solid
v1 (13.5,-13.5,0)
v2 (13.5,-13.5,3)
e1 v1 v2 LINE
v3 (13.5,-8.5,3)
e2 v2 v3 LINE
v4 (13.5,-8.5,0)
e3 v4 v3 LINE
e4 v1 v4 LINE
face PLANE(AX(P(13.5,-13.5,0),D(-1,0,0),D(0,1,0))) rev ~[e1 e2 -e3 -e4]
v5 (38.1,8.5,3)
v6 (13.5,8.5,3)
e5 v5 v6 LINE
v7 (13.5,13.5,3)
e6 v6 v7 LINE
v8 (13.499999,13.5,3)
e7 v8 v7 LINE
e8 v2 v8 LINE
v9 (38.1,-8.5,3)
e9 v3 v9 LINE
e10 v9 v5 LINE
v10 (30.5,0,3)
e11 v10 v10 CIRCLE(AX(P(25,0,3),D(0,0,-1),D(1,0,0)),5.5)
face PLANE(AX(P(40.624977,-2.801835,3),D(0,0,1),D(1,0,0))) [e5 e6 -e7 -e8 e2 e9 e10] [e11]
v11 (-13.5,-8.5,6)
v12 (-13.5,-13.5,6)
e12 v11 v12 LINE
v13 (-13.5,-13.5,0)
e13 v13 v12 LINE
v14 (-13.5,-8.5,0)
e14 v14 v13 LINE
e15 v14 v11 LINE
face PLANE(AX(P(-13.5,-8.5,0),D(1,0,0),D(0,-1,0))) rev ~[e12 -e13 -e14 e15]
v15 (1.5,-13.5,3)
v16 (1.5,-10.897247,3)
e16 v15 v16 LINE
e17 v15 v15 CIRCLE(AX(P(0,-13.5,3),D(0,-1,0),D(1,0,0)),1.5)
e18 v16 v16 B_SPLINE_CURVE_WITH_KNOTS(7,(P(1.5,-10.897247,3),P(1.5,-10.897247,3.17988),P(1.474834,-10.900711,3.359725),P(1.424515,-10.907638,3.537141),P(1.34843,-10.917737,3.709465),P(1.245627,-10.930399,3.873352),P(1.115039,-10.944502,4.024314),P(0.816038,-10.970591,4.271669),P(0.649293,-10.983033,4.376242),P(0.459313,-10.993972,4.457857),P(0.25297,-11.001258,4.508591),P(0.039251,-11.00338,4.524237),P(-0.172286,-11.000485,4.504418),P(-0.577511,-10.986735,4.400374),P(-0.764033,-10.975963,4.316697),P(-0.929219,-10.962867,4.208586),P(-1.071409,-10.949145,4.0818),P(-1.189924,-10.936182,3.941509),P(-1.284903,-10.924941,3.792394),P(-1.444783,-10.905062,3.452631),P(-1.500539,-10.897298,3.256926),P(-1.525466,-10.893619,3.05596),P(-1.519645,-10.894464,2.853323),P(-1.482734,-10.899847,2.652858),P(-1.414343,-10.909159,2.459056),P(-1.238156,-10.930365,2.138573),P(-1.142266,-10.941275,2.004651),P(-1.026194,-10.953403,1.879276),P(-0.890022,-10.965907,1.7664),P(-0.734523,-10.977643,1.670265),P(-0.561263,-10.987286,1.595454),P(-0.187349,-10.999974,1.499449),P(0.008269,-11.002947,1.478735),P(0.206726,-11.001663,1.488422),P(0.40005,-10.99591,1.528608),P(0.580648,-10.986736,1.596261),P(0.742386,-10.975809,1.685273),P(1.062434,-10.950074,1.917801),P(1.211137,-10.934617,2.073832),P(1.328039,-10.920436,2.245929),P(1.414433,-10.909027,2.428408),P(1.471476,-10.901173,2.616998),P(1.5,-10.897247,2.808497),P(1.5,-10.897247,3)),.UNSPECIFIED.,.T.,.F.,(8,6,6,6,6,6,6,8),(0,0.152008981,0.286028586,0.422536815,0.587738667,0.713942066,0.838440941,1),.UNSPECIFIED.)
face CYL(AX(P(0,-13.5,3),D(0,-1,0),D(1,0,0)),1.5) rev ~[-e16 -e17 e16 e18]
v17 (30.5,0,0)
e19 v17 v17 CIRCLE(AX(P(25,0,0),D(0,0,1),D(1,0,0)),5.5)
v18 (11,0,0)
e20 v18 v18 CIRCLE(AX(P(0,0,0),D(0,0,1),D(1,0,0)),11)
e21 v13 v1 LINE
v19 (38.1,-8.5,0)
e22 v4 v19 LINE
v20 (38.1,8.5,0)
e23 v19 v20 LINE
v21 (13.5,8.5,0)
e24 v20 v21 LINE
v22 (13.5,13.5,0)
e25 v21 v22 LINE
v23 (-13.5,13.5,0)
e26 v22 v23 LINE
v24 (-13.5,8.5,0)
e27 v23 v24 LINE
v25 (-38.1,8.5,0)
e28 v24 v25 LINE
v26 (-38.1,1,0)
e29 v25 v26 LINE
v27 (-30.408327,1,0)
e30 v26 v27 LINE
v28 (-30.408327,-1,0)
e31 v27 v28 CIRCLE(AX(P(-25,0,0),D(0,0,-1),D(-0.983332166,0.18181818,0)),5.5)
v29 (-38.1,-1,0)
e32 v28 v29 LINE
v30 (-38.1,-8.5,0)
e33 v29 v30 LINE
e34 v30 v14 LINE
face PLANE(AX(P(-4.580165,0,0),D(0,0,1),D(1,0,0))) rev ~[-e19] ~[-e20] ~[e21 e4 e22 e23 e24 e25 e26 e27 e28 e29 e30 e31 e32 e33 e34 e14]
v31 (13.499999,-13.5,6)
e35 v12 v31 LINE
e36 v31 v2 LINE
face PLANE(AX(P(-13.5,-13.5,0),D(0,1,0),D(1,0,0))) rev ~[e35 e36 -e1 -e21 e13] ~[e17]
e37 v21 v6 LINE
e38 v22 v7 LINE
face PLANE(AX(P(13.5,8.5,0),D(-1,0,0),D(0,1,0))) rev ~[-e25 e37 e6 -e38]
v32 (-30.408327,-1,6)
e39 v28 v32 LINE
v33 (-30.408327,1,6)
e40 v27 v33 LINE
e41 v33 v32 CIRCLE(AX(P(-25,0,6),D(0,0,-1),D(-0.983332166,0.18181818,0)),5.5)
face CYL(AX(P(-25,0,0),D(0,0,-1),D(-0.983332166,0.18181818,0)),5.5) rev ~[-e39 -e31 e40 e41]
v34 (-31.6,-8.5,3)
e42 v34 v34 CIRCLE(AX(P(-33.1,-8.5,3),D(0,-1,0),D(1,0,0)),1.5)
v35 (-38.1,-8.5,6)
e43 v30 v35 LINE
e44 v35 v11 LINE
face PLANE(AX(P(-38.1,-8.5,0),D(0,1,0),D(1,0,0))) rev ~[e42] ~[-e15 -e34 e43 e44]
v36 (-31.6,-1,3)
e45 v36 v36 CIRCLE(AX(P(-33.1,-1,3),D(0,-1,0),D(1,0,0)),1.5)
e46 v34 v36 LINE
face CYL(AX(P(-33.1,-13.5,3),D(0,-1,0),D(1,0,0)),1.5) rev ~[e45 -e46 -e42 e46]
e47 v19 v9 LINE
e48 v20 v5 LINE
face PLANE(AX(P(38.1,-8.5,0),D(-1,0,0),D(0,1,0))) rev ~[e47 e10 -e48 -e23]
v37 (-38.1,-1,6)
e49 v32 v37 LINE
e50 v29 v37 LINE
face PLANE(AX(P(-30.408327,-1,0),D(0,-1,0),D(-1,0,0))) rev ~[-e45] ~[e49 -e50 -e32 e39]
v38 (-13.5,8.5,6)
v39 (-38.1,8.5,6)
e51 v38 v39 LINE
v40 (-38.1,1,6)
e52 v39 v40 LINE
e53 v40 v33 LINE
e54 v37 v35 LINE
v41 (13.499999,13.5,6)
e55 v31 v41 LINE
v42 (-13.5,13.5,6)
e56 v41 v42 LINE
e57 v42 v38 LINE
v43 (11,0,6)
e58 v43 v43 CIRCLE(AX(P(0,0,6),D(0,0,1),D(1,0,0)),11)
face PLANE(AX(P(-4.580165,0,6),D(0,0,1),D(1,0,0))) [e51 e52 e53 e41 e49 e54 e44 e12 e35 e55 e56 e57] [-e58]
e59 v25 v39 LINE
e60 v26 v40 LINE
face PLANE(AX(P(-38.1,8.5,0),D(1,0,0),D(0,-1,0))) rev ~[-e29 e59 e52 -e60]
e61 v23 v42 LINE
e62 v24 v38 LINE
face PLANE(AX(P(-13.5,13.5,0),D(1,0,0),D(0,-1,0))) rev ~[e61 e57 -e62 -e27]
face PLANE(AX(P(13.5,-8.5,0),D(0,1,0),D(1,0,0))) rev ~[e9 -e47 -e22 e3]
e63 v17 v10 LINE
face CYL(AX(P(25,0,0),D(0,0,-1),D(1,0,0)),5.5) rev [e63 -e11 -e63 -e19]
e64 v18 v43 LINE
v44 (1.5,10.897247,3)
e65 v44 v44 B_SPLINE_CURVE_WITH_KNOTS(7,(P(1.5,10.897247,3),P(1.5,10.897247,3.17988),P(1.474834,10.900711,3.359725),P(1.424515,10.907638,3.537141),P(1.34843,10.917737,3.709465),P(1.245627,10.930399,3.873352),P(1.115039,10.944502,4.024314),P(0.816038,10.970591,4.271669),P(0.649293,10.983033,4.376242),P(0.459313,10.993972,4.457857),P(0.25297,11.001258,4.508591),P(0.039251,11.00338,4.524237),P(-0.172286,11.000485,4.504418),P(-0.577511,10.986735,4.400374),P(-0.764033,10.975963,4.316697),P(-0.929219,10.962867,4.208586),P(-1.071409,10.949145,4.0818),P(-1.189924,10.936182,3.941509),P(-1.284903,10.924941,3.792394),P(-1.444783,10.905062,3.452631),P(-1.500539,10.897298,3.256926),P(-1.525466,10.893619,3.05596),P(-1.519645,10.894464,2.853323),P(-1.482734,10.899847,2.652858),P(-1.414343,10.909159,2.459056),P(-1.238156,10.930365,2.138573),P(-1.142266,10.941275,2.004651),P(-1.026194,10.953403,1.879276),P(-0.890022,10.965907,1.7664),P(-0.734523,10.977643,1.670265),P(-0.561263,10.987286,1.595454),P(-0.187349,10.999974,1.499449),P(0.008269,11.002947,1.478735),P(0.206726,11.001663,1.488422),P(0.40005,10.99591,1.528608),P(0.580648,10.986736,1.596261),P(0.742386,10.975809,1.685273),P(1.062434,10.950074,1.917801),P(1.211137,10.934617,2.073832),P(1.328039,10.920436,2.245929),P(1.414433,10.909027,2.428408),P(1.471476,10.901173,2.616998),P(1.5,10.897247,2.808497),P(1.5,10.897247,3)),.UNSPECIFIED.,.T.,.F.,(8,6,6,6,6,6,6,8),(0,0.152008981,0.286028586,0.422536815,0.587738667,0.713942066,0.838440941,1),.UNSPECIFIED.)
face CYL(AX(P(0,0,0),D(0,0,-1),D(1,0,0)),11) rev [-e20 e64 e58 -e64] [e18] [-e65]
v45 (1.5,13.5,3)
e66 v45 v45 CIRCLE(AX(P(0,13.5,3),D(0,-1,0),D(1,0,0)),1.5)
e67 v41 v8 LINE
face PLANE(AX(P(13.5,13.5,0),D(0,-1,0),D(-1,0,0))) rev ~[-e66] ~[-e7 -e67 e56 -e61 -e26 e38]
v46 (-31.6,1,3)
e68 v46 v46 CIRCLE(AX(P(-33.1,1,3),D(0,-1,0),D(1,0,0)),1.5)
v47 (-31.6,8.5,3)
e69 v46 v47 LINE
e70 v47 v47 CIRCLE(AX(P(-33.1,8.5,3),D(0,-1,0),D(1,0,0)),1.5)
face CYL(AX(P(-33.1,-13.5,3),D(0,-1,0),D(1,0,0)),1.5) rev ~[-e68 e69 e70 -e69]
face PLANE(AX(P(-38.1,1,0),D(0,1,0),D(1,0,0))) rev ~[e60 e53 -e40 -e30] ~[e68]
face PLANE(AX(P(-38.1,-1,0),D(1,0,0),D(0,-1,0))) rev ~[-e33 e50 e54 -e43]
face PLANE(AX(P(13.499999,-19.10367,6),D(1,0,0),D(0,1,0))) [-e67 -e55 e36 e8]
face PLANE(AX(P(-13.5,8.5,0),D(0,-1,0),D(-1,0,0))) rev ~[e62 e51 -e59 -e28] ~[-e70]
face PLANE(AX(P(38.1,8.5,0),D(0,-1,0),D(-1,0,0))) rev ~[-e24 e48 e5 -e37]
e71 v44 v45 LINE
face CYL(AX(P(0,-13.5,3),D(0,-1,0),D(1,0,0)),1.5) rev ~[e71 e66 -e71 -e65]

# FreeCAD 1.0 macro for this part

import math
import FreeCAD as App
import Part
import Sketcher

V = App.Vector

doc = App.newDocument("Part")
params = doc.addObject("Spreadsheet::Sheet", "Params")
for row, (alias, value) in enumerate([
    ("sketch1_diameter", "22 mm"),
    ("sketch1_diameter2", "11 mm"),
    ("sketch1_width", "27 mm"),
    ("sketch1_height", "5 mm"),
    ("sketch1_height2", "17 mm"),
    ("pad1_length", "6 mm"),
    ("sketch2_diameter", "3 mm"),
    ("pocket1_length", "50.8 mm"),
    ("pocket2_length", "3 mm"),
], start=1):
    params.set(f"A{row}", alias)
    params.set(f"B{row}", "=" + value)
    params.setAlias(f"B{row}", alias)

body = doc.addObject("PartDesign::Body", "Body")

sketch1 = body.newObject("Sketcher::SketchObject", "Sketch")
sketch1.AttachmentSupport = (doc.getObject("XY_Plane"), [""])
sketch1.MapMode = "FlatFace"
sketch1.addGeometry(Part.ArcOfCircle(Part.Circle(V(-25, 0, 0), V(0, 0, 1), 5.5), math.radians(-170), math.radians(170)), False)
sketch1.addGeometry(Part.LineSegment(V(-30.4, -1, 0), V(-38.1, -1, 0)), False)
sketch1.addGeometry(Part.LineSegment(V(-38.1, -1, 0), V(-38.1, -8.5, 0)), False)
sketch1.addGeometry(Part.LineSegment(V(-38.1, -8.5, 0), V(-13.5, -8.5, 0)), False)
sketch1.addGeometry(Part.LineSegment(V(-13.5, -8.5, 0), V(-13.5, -13.5, 0)), False)
sketch1.addGeometry(Part.LineSegment(V(-13.5, -13.5, 0), V(13.5, -13.5, 0)), False)
sketch1.addGeometry(Part.LineSegment(V(13.5, -13.5, 0), V(13.5, -8.5, 0)), False)
sketch1.addGeometry(Part.LineSegment(V(13.5, -8.5, 0), V(38.1, -8.5, 0)), False)
sketch1.addGeometry(Part.LineSegment(V(38.1, -8.5, 0), V(38.1, 8.5, 0)), False)
sketch1.addGeometry(Part.LineSegment(V(38.1, 8.5, 0), V(13.5, 8.5, 0)), False)
sketch1.addGeometry(Part.LineSegment(V(13.5, 8.5, 0), V(13.5, 13.5, 0)), False)
sketch1.addGeometry(Part.LineSegment(V(13.5, 13.5, 0), V(-13.5, 13.5, 0)), False)
sketch1.addGeometry(Part.LineSegment(V(-13.5, 13.5, 0), V(-13.5, 8.5, 0)), False)
sketch1.addGeometry(Part.LineSegment(V(-13.5, 8.5, 0), V(-38.1, 8.5, 0)), False)
sketch1.addGeometry(Part.LineSegment(V(-38.1, 8.5, 0), V(-38.1, 1, 0)), False)
sketch1.addGeometry(Part.LineSegment(V(-38.1, 1, 0), V(-30.4, 1, 0)), False)
sketch1.addGeometry(Part.Circle(V(0, 0, 0), V(0, 0, 1), 11), False)
sketch1.addGeometry(Part.Circle(V(25, 0, 0), V(0, 0, 1), 5.5), False)
sketch1.addConstraint(Sketcher.Constraint("Coincident", 0, 1, 1, 1))
sketch1.addConstraint(Sketcher.Constraint("Coincident", 1, 2, 2, 1))
sketch1.addConstraint(Sketcher.Constraint("Coincident", 2, 2, 3, 1))
sketch1.addConstraint(Sketcher.Constraint("Coincident", 3, 2, 4, 1))
sketch1.addConstraint(Sketcher.Constraint("Coincident", 4, 2, 5, 1))
sketch1.addConstraint(Sketcher.Constraint("Coincident", 5, 2, 6, 1))
sketch1.addConstraint(Sketcher.Constraint("Coincident", 6, 2, 7, 1))
sketch1.addConstraint(Sketcher.Constraint("Coincident", 7, 2, 8, 1))
sketch1.addConstraint(Sketcher.Constraint("Coincident", 8, 2, 9, 1))
sketch1.addConstraint(Sketcher.Constraint("Coincident", 9, 2, 10, 1))
sketch1.addConstraint(Sketcher.Constraint("Coincident", 10, 2, 11, 1))
sketch1.addConstraint(Sketcher.Constraint("Coincident", 11, 2, 12, 1))
sketch1.addConstraint(Sketcher.Constraint("Coincident", 12, 2, 13, 1))
sketch1.addConstraint(Sketcher.Constraint("Coincident", 13, 2, 14, 1))
sketch1.addConstraint(Sketcher.Constraint("Coincident", 14, 2, 15, 1))
sketch1.addConstraint(Sketcher.Constraint("Coincident", 15, 2, 0, 2))
sketch1.addConstraint(Sketcher.Constraint("Horizontal", 1))
sketch1.addConstraint(Sketcher.Constraint("Vertical", 2))
sketch1.addConstraint(Sketcher.Constraint("Horizontal", 3))
sketch1.addConstraint(Sketcher.Constraint("Vertical", 4))
sketch1.addConstraint(Sketcher.Constraint("Horizontal", 5))
sketch1.addConstraint(Sketcher.Constraint("Vertical", 6))
sketch1.addConstraint(Sketcher.Constraint("Horizontal", 7))
sketch1.addConstraint(Sketcher.Constraint("Vertical", 8))
sketch1.addConstraint(Sketcher.Constraint("Horizontal", 9))
sketch1.addConstraint(Sketcher.Constraint("Vertical", 10))
sketch1.addConstraint(Sketcher.Constraint("Horizontal", 11))
sketch1.addConstraint(Sketcher.Constraint("Vertical", 12))
sketch1.addConstraint(Sketcher.Constraint("Horizontal", 13))
sketch1.addConstraint(Sketcher.Constraint("Vertical", 14))
sketch1.addConstraint(Sketcher.Constraint("Horizontal", 15))
sketch1.addConstraint(Sketcher.Constraint("Coincident", 16, 3, -1, 1))
sketch1.addConstraint(Sketcher.Constraint("Equal", 0, 17))
sketch1.addConstraint(Sketcher.Constraint("Symmetric", 0, 3, 17, 3, -1, 1))
sketch1.addConstraint(Sketcher.Constraint("Symmetric", 2, 2, 8, 2, -1, 1))
sketch1.addConstraint(Sketcher.Constraint("Symmetric", 4, 2, 10, 2, -1, 1))
sketch1.addConstraint(Sketcher.Constraint("Symmetric", 6, 2, 12, 2, -1, 1))
sketch1.addConstraint(Sketcher.Constraint("Symmetric", 3, 2, 6, 2, -2))
sketch1.addConstraint(Sketcher.Constraint("Symmetric", 1, 2, 14, 2, -1))
sketch1.addConstraint(Sketcher.Constraint("PointOnObject", 0, 3, -1))
sketch1.addConstraint(Sketcher.Constraint("Diameter", 16, 22.0))
sketch1.addConstraint(Sketcher.Constraint("Diameter", 17, 11.0))
sketch1.addConstraint(Sketcher.Constraint("DistanceX", 5, 1, 5, 2, 27.0))
sketch1.addConstraint(Sketcher.Constraint("DistanceY", 4, 2, 4, 1, 5.0))
sketch1.addConstraint(Sketcher.Constraint("DistanceY", 8, 1, 8, 2, 17.0))
sketch1.addConstraint(Sketcher.Constraint("DistanceX", 3, 1, 3, 2, 24.6))
sketch1.addConstraint(Sketcher.Constraint("DistanceY", 2, 2, 2, 1, 7.5))
sketch1.addConstraint(Sketcher.Constraint("DistanceX", 0, 3, -1, 1, 25.0))
sketch1.setExpression("Constraints[40]", "Params.sketch1_diameter")
sketch1.setExpression("Constraints[41]", "Params.sketch1_diameter2")
sketch1.setExpression("Constraints[42]", "Params.sketch1_width")
sketch1.setExpression("Constraints[43]", "Params.sketch1_height")
sketch1.setExpression("Constraints[44]", "Params.sketch1_height2")
pad1 = body.newObject("PartDesign::Pad", "Pad")
pad1.Profile = sketch1
pad1.setExpression("Length", "Params.pad1_length")

sketch2 = body.newObject("Sketcher::SketchObject", "Sketch001")
sketch2.AttachmentSupport = (doc.getObject("XZ_Plane"), [""])
sketch2.MapMode = "FlatFace"
sketch2.AttachmentOffset = App.Placement(V(0, 0, 13.5), App.Rotation())
sketch2.addGeometry(Part.Circle(V(0, 3, 0), V(0, 0, 1), 1.5), False)
sketch2.addGeometry(Part.Circle(V(-33.1, 3, 0), V(0, 0, 1), 1.5), False)
sketch2.addConstraint(Sketcher.Constraint("Equal", 0, 1))
sketch2.addConstraint(Sketcher.Constraint("PointOnObject", 0, 3, -2))
sketch2.addConstraint(Sketcher.Constraint("Horizontal", 0, 3, 1, 3))
sketch2.addConstraint(Sketcher.Constraint("Diameter", 0, 3.0))
sketch2.addConstraint(Sketcher.Constraint("DistanceY", -1, 1, 0, 3, 3.0))
sketch2.addConstraint(Sketcher.Constraint("DistanceX", 1, 3, -1, 1, 33.1))
sketch2.setExpression("Constraints[3]", "Params.sketch2_diameter")
pocket1 = body.newObject("PartDesign::Pocket", "Pocket")
pocket1.Profile = sketch2
pocket1.setExpression("Length", "Params.pocket1_length")

sketch3 = body.newObject("Sketcher::SketchObject", "Sketch002")
sketch3.AttachmentSupport = (doc.getObject("XY_Plane"), [""])
sketch3.MapMode = "FlatFace"
sketch3.AttachmentOffset = App.Placement(V(0, 0, 6), App.Rotation())
sketch3.addGeometry(Part.LineSegment(V(13, 14, 0), V(13, -19, 0)), False)
sketch3.addGeometry(Part.LineSegment(V(13, -19, 0), V(68, -19, 0)), False)
sketch3.addGeometry(Part.LineSegment(V(68, -19, 0), V(68, 14, 0)), False)
sketch3.addGeometry(Part.LineSegment(V(68, 14, 0), V(13, 14, 0)), False)
sketch3.addConstraint(Sketcher.Constraint("Coincident", 0, 2, 1, 1))
sketch3.addConstraint(Sketcher.Constraint("Coincident", 1, 2, 2, 1))
sketch3.addConstraint(Sketcher.Constraint("Coincident", 2, 2, 3, 1))
sketch3.addConstraint(Sketcher.Constraint("Coincident", 3, 2, 0, 1))
sketch3.addConstraint(Sketcher.Constraint("Vertical", 0))
sketch3.addConstraint(Sketcher.Constraint("Horizontal", 1))
sketch3.addConstraint(Sketcher.Constraint("Vertical", 2))
sketch3.addConstraint(Sketcher.Constraint("Horizontal", 3))
sketch3.addConstraint(Sketcher.Constraint("DistanceX", -1, 1, 0, 2, 13.499999))
sketch3.addConstraint(Sketcher.Constraint("DistanceY", -1, 1, 2, 2, 13.5))
sketch3.addConstraint(Sketcher.Constraint("DistanceY", 0, 2, 0, 1, 32.60367))
sketch3.addConstraint(Sketcher.Constraint("DistanceX", 1, 1, 1, 2, 54.249955))
pocket2 = body.newObject("PartDesign::Pocket", "Pocket001")
pocket2.Profile = sketch3
pocket2.setExpression("Length", "Params.pocket2_length")

doc.recompute()
